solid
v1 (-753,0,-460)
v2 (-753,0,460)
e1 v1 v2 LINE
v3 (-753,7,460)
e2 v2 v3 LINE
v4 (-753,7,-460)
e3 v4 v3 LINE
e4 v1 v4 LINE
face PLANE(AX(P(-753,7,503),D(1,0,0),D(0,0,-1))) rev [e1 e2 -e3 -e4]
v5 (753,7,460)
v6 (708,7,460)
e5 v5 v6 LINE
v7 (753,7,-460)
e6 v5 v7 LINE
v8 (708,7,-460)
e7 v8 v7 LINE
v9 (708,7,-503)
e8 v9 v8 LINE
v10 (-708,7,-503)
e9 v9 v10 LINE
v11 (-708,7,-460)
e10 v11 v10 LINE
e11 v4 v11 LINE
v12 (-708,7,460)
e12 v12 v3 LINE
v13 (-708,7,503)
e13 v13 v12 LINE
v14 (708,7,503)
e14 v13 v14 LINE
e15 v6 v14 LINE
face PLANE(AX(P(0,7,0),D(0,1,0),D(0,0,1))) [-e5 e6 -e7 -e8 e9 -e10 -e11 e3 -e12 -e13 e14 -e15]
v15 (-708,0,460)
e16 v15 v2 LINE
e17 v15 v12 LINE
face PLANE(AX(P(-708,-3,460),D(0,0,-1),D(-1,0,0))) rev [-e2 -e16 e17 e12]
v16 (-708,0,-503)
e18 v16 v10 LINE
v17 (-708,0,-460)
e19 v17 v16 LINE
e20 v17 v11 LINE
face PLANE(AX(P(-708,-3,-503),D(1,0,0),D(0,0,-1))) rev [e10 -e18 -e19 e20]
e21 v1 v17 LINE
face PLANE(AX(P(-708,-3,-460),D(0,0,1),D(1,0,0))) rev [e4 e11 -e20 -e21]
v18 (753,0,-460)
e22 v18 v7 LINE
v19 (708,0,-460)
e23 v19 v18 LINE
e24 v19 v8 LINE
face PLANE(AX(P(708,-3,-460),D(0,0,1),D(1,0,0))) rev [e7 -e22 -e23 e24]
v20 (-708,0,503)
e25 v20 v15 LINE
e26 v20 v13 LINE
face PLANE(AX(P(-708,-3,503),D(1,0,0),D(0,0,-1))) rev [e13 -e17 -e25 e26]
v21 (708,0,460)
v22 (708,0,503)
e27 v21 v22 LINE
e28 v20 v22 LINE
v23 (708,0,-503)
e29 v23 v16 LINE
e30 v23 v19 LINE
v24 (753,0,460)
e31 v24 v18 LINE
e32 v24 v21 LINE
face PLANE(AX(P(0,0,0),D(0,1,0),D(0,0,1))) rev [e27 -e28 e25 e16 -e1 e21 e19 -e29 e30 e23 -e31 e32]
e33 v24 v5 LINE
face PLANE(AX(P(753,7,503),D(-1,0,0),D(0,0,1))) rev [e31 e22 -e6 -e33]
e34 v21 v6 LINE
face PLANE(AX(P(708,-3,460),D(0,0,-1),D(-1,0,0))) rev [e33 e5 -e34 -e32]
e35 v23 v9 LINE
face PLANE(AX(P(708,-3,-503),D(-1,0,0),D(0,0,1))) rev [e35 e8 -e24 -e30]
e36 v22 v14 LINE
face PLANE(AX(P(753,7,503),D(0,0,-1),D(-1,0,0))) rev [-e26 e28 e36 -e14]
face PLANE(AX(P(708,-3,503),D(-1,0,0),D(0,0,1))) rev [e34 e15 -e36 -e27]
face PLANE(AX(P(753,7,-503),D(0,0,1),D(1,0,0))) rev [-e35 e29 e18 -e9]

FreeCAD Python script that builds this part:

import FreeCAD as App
import Part
import Sketcher
from FreeCAD import Vector


def add_polygon(sketch, points):
    """Adds a closed chain of lines whose ends are joined by coincident constraints."""
    first, n = sketch.GeometryCount, len(points)
    for a, b in zip(points, points[1:] + points[:1]):
        sketch.addGeometry(Part.LineSegment(App.Vector(*a, 0), App.Vector(*b, 0)), False)
    for i in range(n):
        sketch.addConstraint(Sketcher.Constraint("Coincident", first + i, 2, first + (i + 1) % n, 1))

doc = App.newDocument("Part")
params = doc.addObject("Spreadsheet::Sheet", "Params")
for row, (alias, value) in enumerate([
    ("sketch1_width", "1506 mm"),
    ("sketch1_height", "1006 mm"),
    ("pad1_length", "7 mm"),
    ("sketch2_width", "45 mm"),
    ("sketch2_height", "43 mm"),
    ("pocket1_length", "10 mm"),
], start=1):
    params.set(f"A{row}", alias)
    params.set(f"B{row}", "=" + value)
    params.setAlias(f"B{row}", alias)

body = doc.addObject("PartDesign::Body", "Body")

# Sketch on XZ plane
sketch1 = body.newObject("Sketcher::SketchObject", "Sketch")
sketch1.AttachmentSupport = (doc.getObject("XZ_Plane"), [""])
sketch1.MapMode = "FlatFace"
add_polygon(sketch1, [(-753, -503), (-753, 503), (753, 503), (753, -503)])  # lines 0-3
sketch1.addConstraint([
    Sketcher.Constraint("Vertical", 0),
    Sketcher.Constraint("Horizontal", 1),
    Sketcher.Constraint("Vertical", 2),
    Sketcher.Constraint("Horizontal", 3),
    Sketcher.Constraint("Symmetric", 0, 2, 2, 2, -1, 1),
    Sketcher.Constraint("DistanceX", 1, 1, 1, 2, 1506.0),
    Sketcher.Constraint("DistanceY", 0, 1, 0, 2, 1006.0),
])
sketch1.setExpression("Constraints[9]", "Params.sketch1_width")
sketch1.setExpression("Constraints[10]", "Params.sketch1_height")
pad1 = body.newObject("PartDesign::Pad", "Pad")
pad1.Profile = sketch1
pad1.setExpression("Length", "Params.pad1_length")
pad1.Reversed = True

# Sketch on XZ plane
sketch2 = body.newObject("Sketcher::SketchObject", "Sketch001")
sketch2.AttachmentSupport = (doc.getObject("XZ_Plane"), [""])
sketch2.MapMode = "FlatFace"
sketch2.AttachmentOffset = App.Placement(Vector(0, 0, -7), App.Rotation())
add_polygon(sketch2, [(-753, -503), (-753, -460), (-708, -460), (-708, -503)])  # lines 0-3
add_polygon(sketch2, [(-753, 460), (-753, 503), (-708, 503), (-708, 460)])  # lines 4-7
add_polygon(sketch2, [(708, 460), (708, 503), (753, 503), (753, 460)])  # lines 8-11
add_polygon(sketch2, [(708, -503), (708, -460), (753, -460), (753, -503)])  # lines 12-15
sketch2.addConstraint([
    Sketcher.Constraint("Vertical", 0),
    Sketcher.Constraint("Horizontal", 1),
    Sketcher.Constraint("Vertical", 2),
    Sketcher.Constraint("Horizontal", 3),
    Sketcher.Constraint("Vertical", 4),
    Sketcher.Constraint("Horizontal", 5),
    Sketcher.Constraint("Vertical", 6),
    Sketcher.Constraint("Horizontal", 7),
    Sketcher.Constraint("Vertical", 8),
    Sketcher.Constraint("Horizontal", 9),
    Sketcher.Constraint("Vertical", 10),
    Sketcher.Constraint("Horizontal", 11),
    Sketcher.Constraint("Vertical", 12),
    Sketcher.Constraint("Horizontal", 13),
    Sketcher.Constraint("Vertical", 14),
    Sketcher.Constraint("Horizontal", 15),
    Sketcher.Constraint("Symmetric", 2, 2, 8, 2, -1, 1),
    Sketcher.Constraint("Symmetric", 0, 2, 10, 2, -1, 1),
    Sketcher.Constraint("Symmetric", 6, 2, 12, 2, -1, 1),
    Sketcher.Constraint("Symmetric", 4, 2, 14, 2, -1, 1),
    Sketcher.Constraint("Symmetric", 5, 2, 8, 2, -2),
    Sketcher.Constraint("Symmetric", 7, 2, 10, 2, -2),
    Sketcher.Constraint("DistanceX", 1, 1, 1, 2, 45.0),
    Sketcher.Constraint("DistanceY", 0, 1, 0, 2, 43.0),
    Sketcher.Constraint("DistanceX", 0, 2, -1, 1, 753.0),
    Sketcher.Constraint("DistanceY", 0, 2, -1, 1, 460.0),
])
sketch2.setExpression("Constraints[38]", "Params.sketch2_width")
sketch2.setExpression("Constraints[39]", "Params.sketch2_height")
pocket1 = body.newObject("PartDesign::Pocket", "Pocket")
pocket1.Profile = sketch2
pocket1.setExpression("Length", "Params.pocket1_length")
pocket1.Reversed = True

doc.recompute()
